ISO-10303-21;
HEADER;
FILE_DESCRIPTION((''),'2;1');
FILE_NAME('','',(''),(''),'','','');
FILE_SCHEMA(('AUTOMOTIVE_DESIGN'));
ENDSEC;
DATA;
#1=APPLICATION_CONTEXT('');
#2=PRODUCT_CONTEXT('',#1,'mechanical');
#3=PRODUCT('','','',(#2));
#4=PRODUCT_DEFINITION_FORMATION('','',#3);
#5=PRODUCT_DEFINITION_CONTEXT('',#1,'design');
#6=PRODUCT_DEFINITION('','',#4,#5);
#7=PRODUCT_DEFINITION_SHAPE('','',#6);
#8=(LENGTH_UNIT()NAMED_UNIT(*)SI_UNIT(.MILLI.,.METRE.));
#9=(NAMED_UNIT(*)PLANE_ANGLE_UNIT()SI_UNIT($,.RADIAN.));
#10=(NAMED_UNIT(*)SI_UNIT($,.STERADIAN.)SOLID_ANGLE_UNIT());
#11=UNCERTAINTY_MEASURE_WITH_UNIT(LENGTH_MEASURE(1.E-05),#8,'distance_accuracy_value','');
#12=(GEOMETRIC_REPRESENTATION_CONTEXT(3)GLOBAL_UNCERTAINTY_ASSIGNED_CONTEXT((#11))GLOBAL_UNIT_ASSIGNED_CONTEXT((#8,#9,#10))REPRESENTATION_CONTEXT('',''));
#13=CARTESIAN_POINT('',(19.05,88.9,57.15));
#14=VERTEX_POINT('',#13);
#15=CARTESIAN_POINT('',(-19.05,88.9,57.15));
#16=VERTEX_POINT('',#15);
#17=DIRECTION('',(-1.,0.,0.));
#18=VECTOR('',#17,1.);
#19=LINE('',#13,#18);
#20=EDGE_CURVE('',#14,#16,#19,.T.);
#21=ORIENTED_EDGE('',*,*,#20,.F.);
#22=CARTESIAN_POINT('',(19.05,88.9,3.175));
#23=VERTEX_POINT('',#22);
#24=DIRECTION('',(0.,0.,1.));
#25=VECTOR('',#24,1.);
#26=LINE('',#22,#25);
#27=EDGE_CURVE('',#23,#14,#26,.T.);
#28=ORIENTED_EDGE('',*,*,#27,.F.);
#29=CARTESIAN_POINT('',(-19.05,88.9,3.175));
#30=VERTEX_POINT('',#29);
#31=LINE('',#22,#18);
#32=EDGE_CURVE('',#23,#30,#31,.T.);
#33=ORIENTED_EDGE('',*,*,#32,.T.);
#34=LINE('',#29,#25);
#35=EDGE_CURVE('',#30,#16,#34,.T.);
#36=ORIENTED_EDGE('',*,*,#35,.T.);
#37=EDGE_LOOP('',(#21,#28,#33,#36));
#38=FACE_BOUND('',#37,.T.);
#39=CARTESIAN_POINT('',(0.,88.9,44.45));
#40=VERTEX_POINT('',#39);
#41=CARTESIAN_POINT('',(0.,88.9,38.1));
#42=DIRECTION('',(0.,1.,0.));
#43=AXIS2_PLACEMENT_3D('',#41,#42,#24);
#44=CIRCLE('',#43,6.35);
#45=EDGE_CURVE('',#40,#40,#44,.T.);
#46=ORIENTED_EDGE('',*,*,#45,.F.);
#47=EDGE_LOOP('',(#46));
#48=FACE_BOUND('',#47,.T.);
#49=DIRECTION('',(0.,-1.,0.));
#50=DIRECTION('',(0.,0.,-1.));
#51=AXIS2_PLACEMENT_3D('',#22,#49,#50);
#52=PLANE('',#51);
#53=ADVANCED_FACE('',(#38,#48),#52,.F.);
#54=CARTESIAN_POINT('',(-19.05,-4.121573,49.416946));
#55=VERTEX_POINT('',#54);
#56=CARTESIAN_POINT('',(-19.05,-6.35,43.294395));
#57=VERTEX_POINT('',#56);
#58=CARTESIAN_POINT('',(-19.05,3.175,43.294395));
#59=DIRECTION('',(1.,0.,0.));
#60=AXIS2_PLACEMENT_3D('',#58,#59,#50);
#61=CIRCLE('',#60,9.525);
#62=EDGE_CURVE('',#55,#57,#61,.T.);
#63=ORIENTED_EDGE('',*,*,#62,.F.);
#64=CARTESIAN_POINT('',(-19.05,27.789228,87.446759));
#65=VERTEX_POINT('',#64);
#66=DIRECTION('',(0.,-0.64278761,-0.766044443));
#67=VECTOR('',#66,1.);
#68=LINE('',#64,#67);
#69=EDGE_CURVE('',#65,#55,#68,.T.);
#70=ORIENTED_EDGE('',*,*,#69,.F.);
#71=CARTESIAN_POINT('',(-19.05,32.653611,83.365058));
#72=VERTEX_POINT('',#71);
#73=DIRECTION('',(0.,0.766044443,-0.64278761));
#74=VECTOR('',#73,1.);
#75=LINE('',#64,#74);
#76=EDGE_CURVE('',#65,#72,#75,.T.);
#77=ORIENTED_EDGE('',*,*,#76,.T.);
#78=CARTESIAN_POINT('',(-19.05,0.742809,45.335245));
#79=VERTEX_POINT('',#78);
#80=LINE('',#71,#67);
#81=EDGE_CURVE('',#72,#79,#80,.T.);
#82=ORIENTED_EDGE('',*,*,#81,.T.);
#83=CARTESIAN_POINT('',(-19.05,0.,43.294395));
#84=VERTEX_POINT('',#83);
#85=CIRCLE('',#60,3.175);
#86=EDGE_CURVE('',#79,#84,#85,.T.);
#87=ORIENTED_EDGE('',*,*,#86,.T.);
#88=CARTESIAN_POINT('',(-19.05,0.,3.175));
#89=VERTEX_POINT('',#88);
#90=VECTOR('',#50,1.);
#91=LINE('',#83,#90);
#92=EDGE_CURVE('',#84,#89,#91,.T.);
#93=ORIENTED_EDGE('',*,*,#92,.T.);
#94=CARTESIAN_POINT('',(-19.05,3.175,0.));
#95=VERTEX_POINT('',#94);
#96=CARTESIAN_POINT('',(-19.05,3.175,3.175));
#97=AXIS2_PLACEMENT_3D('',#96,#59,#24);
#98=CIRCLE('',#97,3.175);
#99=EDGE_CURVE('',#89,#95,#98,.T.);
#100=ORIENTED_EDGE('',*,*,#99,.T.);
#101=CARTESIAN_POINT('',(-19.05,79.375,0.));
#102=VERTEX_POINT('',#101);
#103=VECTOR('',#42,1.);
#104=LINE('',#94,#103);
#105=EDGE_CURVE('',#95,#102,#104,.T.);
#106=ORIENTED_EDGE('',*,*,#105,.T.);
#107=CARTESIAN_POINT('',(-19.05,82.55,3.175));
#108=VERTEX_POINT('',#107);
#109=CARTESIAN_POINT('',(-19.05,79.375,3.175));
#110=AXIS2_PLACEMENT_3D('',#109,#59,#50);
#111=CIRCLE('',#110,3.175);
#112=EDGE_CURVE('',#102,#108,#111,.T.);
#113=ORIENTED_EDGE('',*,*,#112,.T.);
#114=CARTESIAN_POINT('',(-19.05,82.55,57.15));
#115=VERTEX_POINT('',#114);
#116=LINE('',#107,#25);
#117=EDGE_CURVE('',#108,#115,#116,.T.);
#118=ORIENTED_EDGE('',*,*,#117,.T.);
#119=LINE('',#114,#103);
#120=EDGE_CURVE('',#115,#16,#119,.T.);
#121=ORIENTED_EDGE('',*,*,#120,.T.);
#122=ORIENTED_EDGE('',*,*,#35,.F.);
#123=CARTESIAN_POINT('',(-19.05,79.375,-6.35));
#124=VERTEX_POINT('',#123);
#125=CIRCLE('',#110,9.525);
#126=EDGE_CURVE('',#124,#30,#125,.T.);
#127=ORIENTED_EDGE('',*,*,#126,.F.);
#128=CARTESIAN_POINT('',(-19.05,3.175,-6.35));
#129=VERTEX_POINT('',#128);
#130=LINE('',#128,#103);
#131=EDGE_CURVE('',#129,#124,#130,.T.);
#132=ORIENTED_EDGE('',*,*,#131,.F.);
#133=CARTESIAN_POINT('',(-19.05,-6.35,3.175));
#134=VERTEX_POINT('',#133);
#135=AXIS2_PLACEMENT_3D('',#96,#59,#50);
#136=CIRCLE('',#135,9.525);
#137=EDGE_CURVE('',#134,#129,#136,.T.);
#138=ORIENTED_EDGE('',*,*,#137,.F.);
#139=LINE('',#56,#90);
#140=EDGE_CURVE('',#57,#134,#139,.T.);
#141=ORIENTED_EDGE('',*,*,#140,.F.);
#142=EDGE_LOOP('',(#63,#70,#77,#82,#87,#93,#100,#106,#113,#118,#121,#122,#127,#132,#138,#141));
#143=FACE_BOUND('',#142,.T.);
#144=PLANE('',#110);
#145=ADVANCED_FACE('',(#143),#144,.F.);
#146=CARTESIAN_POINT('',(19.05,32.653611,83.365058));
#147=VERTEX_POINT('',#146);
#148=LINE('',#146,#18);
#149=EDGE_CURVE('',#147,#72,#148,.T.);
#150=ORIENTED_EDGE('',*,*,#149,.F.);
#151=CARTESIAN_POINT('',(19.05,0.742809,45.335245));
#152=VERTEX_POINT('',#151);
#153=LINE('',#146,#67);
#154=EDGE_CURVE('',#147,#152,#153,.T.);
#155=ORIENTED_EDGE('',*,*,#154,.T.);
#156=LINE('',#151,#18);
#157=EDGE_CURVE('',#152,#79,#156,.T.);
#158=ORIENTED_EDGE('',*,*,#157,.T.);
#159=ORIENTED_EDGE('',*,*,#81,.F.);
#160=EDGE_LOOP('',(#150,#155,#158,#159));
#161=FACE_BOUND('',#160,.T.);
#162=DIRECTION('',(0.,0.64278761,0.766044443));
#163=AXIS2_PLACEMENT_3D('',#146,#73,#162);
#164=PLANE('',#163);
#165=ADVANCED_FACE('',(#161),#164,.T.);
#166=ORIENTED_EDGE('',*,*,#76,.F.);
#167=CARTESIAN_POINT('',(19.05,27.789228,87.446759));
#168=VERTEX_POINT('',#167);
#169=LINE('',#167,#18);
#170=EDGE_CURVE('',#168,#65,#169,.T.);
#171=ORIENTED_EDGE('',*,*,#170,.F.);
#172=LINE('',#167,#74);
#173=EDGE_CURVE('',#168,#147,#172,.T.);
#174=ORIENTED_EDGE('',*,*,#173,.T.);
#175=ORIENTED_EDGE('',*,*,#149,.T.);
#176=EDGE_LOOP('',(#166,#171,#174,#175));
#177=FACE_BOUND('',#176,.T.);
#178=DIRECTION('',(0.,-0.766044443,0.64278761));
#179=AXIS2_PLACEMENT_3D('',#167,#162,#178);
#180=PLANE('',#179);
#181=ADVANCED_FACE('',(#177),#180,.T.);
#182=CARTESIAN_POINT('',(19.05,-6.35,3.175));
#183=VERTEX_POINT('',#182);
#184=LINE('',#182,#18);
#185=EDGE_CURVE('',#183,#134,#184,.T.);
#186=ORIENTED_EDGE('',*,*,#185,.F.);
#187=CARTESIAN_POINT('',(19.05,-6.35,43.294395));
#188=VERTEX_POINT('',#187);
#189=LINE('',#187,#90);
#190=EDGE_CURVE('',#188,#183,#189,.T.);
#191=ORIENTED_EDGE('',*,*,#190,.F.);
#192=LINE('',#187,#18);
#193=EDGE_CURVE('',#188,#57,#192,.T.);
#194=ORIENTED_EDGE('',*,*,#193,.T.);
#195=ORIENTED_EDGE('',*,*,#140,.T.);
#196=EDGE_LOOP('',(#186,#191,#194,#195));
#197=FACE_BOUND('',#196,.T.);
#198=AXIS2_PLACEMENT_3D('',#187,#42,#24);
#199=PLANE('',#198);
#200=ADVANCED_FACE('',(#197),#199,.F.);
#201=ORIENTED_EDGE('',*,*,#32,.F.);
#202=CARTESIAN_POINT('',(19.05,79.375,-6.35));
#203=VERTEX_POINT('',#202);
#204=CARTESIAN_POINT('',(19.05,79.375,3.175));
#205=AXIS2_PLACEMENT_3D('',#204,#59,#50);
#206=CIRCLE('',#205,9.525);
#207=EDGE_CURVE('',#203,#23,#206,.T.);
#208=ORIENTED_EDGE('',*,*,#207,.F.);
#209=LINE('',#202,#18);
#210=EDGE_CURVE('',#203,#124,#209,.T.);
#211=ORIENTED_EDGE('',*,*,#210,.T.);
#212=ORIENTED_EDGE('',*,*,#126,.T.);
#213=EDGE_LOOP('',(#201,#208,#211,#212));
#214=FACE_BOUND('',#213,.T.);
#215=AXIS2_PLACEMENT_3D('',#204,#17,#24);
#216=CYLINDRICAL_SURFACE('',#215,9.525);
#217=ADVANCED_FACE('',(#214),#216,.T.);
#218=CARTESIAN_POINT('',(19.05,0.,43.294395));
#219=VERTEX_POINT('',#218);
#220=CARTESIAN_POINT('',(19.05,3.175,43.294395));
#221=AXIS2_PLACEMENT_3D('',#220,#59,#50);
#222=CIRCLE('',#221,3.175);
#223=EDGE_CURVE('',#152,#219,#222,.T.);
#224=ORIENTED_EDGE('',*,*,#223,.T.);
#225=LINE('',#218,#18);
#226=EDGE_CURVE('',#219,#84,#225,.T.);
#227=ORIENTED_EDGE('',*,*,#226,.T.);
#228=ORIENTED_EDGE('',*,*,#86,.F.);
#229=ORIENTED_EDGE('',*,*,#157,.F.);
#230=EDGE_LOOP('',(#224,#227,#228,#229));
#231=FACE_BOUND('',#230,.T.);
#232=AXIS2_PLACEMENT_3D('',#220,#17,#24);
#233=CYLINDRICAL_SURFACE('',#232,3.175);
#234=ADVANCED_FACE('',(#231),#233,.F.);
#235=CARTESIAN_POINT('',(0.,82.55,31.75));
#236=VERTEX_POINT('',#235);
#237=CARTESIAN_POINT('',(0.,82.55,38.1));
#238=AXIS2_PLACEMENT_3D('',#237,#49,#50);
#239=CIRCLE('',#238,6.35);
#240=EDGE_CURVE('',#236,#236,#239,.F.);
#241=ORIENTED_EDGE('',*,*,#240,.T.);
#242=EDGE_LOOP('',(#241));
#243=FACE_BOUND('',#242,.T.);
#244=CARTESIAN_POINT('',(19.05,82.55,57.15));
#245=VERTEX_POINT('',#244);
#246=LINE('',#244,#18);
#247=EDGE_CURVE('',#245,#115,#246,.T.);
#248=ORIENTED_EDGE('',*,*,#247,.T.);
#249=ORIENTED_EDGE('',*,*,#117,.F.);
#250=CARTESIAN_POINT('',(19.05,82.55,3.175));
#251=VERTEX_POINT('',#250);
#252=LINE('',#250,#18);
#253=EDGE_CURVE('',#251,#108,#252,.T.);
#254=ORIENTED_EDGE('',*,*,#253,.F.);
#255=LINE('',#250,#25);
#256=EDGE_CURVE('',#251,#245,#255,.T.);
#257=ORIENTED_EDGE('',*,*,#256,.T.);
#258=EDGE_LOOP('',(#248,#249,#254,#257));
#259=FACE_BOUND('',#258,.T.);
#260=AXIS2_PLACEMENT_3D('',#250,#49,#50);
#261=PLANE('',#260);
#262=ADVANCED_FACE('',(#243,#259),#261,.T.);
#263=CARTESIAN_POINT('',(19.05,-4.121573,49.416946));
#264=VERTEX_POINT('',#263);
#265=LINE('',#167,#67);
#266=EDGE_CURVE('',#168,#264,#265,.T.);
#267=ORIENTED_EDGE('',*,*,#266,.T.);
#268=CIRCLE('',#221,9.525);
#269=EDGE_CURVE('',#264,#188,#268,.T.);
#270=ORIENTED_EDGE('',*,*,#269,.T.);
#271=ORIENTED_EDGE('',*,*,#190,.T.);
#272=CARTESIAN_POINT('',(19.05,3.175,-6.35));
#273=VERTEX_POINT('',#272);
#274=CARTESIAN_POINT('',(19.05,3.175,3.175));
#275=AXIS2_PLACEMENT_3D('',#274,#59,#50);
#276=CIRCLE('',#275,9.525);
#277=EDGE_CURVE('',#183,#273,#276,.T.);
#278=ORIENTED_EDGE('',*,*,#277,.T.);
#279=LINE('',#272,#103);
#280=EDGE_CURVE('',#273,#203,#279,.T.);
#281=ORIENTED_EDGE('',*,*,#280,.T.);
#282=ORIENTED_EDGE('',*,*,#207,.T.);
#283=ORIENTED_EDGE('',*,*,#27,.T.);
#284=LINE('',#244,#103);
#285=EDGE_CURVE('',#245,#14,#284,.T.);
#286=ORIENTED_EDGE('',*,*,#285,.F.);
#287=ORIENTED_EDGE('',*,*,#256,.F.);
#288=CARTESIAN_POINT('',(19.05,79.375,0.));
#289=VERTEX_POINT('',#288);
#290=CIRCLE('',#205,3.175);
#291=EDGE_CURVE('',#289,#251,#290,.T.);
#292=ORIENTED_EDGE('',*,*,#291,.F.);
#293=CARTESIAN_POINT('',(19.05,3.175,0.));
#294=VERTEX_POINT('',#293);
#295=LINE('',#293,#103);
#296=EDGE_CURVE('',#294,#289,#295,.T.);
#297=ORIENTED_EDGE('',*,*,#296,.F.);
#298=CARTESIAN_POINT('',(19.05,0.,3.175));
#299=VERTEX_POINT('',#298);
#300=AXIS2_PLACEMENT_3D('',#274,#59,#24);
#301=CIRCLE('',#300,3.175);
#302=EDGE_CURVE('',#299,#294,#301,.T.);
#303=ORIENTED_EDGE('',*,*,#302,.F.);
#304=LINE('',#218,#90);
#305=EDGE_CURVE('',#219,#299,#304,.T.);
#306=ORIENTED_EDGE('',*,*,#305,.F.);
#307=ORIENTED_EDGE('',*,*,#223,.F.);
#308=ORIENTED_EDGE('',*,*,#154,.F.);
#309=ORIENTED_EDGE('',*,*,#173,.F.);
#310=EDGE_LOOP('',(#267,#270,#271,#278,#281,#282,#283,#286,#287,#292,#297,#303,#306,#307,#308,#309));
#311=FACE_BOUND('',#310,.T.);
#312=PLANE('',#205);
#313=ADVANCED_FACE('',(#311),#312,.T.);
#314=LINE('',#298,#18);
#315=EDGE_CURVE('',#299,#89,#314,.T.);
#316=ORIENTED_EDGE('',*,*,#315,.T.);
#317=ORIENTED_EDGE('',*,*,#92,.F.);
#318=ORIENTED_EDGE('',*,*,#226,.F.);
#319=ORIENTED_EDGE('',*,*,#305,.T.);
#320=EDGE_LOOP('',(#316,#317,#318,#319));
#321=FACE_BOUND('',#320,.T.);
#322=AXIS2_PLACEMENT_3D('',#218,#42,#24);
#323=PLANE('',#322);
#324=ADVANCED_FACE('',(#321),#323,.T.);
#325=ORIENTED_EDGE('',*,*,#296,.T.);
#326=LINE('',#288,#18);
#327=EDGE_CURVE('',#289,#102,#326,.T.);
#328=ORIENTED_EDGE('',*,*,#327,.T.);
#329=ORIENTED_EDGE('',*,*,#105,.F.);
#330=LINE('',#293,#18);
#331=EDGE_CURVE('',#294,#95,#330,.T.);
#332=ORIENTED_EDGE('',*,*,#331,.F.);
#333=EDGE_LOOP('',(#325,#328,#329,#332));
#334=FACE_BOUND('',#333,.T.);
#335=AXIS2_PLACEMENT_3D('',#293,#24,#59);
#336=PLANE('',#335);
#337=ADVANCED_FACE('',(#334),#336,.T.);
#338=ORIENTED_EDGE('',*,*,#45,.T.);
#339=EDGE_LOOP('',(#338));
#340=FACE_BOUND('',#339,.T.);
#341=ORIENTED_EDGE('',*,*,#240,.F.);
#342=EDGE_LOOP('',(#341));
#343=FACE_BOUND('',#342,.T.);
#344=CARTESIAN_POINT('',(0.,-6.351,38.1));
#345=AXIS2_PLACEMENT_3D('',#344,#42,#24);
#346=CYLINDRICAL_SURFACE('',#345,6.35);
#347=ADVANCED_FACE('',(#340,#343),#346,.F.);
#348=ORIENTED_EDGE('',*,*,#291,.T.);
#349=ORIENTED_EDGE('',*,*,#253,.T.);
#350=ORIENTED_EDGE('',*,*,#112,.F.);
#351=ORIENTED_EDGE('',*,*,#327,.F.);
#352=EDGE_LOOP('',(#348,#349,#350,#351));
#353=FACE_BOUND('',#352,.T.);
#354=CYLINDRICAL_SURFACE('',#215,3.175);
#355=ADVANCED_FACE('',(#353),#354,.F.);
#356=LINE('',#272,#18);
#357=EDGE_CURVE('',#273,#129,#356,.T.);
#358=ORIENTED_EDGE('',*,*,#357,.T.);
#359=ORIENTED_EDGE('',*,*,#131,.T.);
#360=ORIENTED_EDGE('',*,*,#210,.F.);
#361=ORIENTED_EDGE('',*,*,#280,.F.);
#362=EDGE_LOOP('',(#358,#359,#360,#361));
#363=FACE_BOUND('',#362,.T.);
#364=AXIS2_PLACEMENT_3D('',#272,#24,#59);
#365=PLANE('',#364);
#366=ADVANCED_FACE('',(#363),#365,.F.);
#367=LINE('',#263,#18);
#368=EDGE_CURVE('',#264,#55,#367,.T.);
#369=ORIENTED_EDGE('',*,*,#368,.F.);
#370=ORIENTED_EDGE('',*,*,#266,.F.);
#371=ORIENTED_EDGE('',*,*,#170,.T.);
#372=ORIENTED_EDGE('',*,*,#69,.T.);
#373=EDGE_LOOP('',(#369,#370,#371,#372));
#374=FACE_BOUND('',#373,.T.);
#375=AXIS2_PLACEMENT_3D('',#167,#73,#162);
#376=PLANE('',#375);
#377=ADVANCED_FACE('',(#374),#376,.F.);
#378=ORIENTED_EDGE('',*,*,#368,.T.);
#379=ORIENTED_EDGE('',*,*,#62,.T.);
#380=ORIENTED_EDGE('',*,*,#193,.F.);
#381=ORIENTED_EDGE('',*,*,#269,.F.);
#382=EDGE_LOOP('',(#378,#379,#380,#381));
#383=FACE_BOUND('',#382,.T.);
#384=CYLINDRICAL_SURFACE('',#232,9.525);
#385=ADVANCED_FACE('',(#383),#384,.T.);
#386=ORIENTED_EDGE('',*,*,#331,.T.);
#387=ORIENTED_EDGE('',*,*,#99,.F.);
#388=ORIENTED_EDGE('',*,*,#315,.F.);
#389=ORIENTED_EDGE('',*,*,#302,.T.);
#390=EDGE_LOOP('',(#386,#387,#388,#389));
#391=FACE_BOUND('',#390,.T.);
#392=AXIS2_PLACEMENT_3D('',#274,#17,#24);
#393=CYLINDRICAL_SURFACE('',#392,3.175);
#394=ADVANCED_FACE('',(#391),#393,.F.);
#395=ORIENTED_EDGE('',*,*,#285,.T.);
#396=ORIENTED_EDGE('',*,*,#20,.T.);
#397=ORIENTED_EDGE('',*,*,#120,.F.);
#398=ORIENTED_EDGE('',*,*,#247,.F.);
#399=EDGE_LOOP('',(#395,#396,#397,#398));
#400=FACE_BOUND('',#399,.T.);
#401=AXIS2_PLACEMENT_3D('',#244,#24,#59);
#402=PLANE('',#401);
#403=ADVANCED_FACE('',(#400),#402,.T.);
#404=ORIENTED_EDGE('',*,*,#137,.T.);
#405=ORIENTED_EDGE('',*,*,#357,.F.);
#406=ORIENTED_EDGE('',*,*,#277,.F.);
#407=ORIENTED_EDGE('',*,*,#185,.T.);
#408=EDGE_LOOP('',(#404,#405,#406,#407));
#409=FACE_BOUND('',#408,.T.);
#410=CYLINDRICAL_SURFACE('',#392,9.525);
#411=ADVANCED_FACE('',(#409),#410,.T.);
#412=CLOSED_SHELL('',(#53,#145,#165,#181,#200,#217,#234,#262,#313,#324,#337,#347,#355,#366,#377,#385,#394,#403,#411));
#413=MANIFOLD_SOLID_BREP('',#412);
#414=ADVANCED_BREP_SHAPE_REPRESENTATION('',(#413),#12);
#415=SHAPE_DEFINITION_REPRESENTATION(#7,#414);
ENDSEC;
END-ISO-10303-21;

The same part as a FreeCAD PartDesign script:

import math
import FreeCAD as App
import Part
import Sketcher
Q = App.Units.Quantity

doc = App.newDocument("Part")
body = doc.addObject("PartDesign::Body", "Body")

sketch1 = body.newObject("Sketcher::SketchObject", "Sketch")
sketch1.AttachmentSupport = (doc.getObject("YZ_Plane"), [""])
sketch1.MapMode = "FlatFace"
sketch1.addGeometry([
    Part.LineSegment(App.Vector(0.7, 45.3, 0), App.Vector(32.7, 83.4, 0)),
    Part.LineSegment(App.Vector(32.7, 83.4, 0), App.Vector(27.8, 87.4, 0)),
    Part.LineSegment(App.Vector(27.8, 87.4, 0), App.Vector(-4.1, 49.4, 0)),
    Part.ArcOfCircle(Part.Circle(App.Vector(3.2, 43.3, 0), App.Vector(0, 0, 1), 9.5), math.radians(140), math.radians(180)),
    Part.LineSegment(App.Vector(-6.3, 43.3, 0), App.Vector(-6.3, 3.2, 0)),
    Part.ArcOfCircle(Part.Circle(App.Vector(3.2, 3.2, 0), App.Vector(0, 0, 1), 9.5), math.radians(180), math.radians(270)),
    Part.LineSegment(App.Vector(3.2, -6.3, 0), App.Vector(79.4, -6.3, 0)),
    Part.ArcOfCircle(Part.Circle(App.Vector(79.4, 3.2, 0), App.Vector(0, 0, 1), 9.5), math.radians(-90), math.radians(0)),
    Part.LineSegment(App.Vector(88.9, 3.2, 0), App.Vector(88.9, 57.1, 0)),
    Part.LineSegment(App.Vector(88.9, 57.1, 0), App.Vector(82.5, 57.1, 0)),
    Part.LineSegment(App.Vector(82.5, 57.1, 0), App.Vector(82.5, 3.2, 0)),
    Part.ArcOfCircle(Part.Circle(App.Vector(79.4, 3.2, 0), App.Vector(0, 0, 1), 3.2), math.radians(-90), math.radians(0)),
    Part.LineSegment(App.Vector(79.4, 0, 0), App.Vector(3.2, 0, 0)),
    Part.ArcOfCircle(Part.Circle(App.Vector(3.2, 3.2, 0), App.Vector(0, 0, 1), 3.2), math.radians(-180), math.radians(-90)),
    Part.LineSegment(App.Vector(0, 3.2, 0), App.Vector(0, 43.3, 0)),
    Part.ArcOfCircle(Part.Circle(App.Vector(3.2, 43.3, 0), App.Vector(0, 0, 1), 3.2), math.radians(140), math.radians(180)),
], False)
sketch1.addConstraint([
    Sketcher.Constraint("Coincident", 0, 2, 1, 1),
    Sketcher.Constraint("Coincident", 1, 2, 2, 1),
    Sketcher.Constraint("Tangent", 2, 2, 3, 1),
    Sketcher.Constraint("Tangent", 3, 2, 4, 1),
    Sketcher.Constraint("Tangent", 4, 2, 5, 1),
    Sketcher.Constraint("Tangent", 5, 2, 6, 1),
    Sketcher.Constraint("Tangent", 6, 2, 7, 1),
    Sketcher.Constraint("Tangent", 7, 2, 8, 1),
    Sketcher.Constraint("Coincident", 8, 2, 9, 1),
    Sketcher.Constraint("Coincident", 9, 2, 10, 1),
    Sketcher.Constraint("Tangent", 10, 2, 11, 2),
    Sketcher.Constraint("Tangent", 11, 1, 12, 1),
    Sketcher.Constraint("Tangent", 12, 2, 13, 2),
    Sketcher.Constraint("Tangent", 13, 1, 14, 1),
    Sketcher.Constraint("Tangent", 14, 2, 15, 2),
    Sketcher.Constraint("Tangent", 15, 1, 0, 1),
    Sketcher.Constraint("Vertical", 4),
    Sketcher.Constraint("Horizontal", 6),
    Sketcher.Constraint("Vertical", 8),
    Sketcher.Constraint("Horizontal", 9),
    Sketcher.Constraint("Vertical", 10),
    Sketcher.Constraint("Horizontal", 12),
    Sketcher.Constraint("Vertical", 14),
    Sketcher.Constraint("Coincident", 11, 3, 7, 3),
    Sketcher.Constraint("Coincident", 13, 3, 5, 3),
    Sketcher.Constraint("Coincident", 15, 3, 3, 3),
    Sketcher.Constraint("Equal", 3, 5),
    Sketcher.Constraint("Equal", 5, 7),
    Sketcher.Constraint("PointOnObject", 11, 1, -1),
    Sketcher.Constraint("PointOnObject", 13, 1, -2),
    Sketcher.Constraint("Perpendicular", 0, 1),
    Sketcher.Constraint("Perpendicular", 1, 2),
    Sketcher.Constraint("DistanceX", 6, 1, 6, 2, Q("3 in")),
    Sketcher.Constraint("Angle", 0, Q("50 deg")),
    Sketcher.Constraint("Radius", 3, Q("0.375 in")),
    Sketcher.Constraint("Radius", 11, Q("0.125 in")),
    Sketcher.Constraint("DistanceY", 6, 2, 8, 2, Q("2.5 in")),
    Sketcher.Constraint("DistanceX", 2, 2, 1, 2, Q("31.910802 mm")),
    Sketcher.Constraint("DistanceY", 4, 2, 4, 1, Q("40.119395 mm")),
])
pad1 = body.newObject("PartDesign::Pad", "Pad")
pad1.Profile = sketch1
pad1.Length = Q("1.5 in")
pad1.Midplane = True

sketch2 = body.newObject("Sketcher::SketchObject", "Sketch001")
sketch2.AttachmentSupport = (doc.getObject("XZ_Plane"), [""])
sketch2.MapMode = "FlatFace"
sketch2.AttachmentOffset = App.Placement(App.Vector(0, 0, -3.5 * 25.4), App.Rotation())
sketch2.addGeometry(Part.Circle(App.Vector(0, 38, 0), App.Vector(0, 0, 1), 6), False)
sketch2.addConstraint([
    Sketcher.Constraint("PointOnObject", 0, 3, -2),
    Sketcher.Constraint("Diameter", 0, Q("0.5 in")),
    Sketcher.Constraint("DistanceY", -1, 1, 0, 3, Q("1.5 in")),
])
pocket1 = body.newObject("PartDesign::Pocket", "Pocket")
pocket1.Profile = sketch2
pocket1.Type = "UpToFirst"
pocket1.Reversed = True

doc.recompute()
